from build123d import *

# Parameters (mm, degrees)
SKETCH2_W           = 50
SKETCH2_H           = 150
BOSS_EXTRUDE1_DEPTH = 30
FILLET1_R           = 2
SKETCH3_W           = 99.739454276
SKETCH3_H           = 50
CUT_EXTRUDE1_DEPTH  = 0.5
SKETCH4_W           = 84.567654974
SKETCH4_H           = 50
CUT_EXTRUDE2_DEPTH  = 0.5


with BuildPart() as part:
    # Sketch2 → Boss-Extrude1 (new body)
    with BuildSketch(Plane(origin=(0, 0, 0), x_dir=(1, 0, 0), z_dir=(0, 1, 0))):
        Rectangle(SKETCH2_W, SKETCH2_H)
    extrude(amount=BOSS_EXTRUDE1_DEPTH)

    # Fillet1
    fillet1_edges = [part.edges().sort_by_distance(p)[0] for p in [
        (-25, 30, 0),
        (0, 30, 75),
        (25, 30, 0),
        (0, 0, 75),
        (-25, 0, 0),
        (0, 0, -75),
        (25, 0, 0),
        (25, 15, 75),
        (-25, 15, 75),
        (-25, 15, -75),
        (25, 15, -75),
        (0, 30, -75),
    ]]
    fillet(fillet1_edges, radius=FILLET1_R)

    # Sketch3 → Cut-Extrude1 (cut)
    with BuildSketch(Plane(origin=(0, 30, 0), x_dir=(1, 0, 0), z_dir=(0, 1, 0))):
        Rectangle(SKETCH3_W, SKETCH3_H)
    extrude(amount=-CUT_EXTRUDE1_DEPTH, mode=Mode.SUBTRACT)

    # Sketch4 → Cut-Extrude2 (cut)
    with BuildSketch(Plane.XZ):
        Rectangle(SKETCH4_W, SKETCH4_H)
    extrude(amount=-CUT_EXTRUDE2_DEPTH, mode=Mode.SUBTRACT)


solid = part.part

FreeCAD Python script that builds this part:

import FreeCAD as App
import Part
import Sketcher

V = App.Vector
Q = App.Units.Quantity


def add_polygon(sketch, points):
    """Adds a closed chain of lines whose ends are joined by coincident constraints."""
    first, n = sketch.GeometryCount, len(points)
    for a, b in zip(points, points[1:] + points[:1]):
        sketch.addGeometry(Part.LineSegment(App.Vector(*a, 0), App.Vector(*b, 0)), False)
    for i in range(n):
        sketch.addConstraint(Sketcher.Constraint("Coincident", first + i, 2, first + (i + 1) % n, 1))

doc = App.newDocument("Part")
params = doc.addObject("Spreadsheet::Sheet", "Params")
for row, (alias, value) in enumerate([
    ("sketch1_width", "50 mm"),
    ("sketch1_height", "150 mm"),
    ("pad1_length", "30 mm"),
    ("fillet_radius", "2 mm"),
    ("sketch2_height", "50 mm"),
    ("pocket1_length", "0.5 mm"),
    ("sketch3_height", "50 mm"),
    ("pocket2_length", "0.5 mm"),
], start=1):
    params.set(f"A{row}", alias)
    params.set(f"B{row}", "=" + value)
    params.setAlias(f"B{row}", alias)

body = doc.addObject("PartDesign::Body", "Body")

# Sketch on XZ plane
sketch1 = body.newObject("Sketcher::SketchObject", "Sketch")
sketch1.AttachmentSupport = (doc.getObject("XZ_Plane"), [""])
sketch1.MapMode = "FlatFace"
add_polygon(sketch1, [(-25, -75), (-25, 75), (25, 75), (25, -75)])  # lines 0-3
sketch1.addConstraint(Sketcher.Constraint("Vertical", 0))
sketch1.addConstraint(Sketcher.Constraint("Horizontal", 1))
sketch1.addConstraint(Sketcher.Constraint("Vertical", 2))
sketch1.addConstraint(Sketcher.Constraint("Horizontal", 3))
sketch1.addConstraint(Sketcher.Constraint("Symmetric", 0, 2, 2, 2, -1, 1))
sketch1.addConstraint(Sketcher.Constraint("DistanceX", 1, 1, 1, 2, Q("50 mm")))
sketch1.addConstraint(Sketcher.Constraint("DistanceY", 0, 1, 0, 2, Q("150 mm")))
sketch1.setExpression("Constraints[9]", "Params.sketch1_width")
sketch1.setExpression("Constraints[10]", "Params.sketch1_height")
pad1 = body.newObject("PartDesign::Pad", "Pad")
pad1.Profile = sketch1
pad1.setExpression("Length", "Params.pad1_length")
pad1.Reversed = True
doc.recompute()

fillet = body.newObject("PartDesign::Fillet", "Fillet")
fillet.Base = (pad1, ["Edge1"])
fillet.UseAllEdges = True
fillet.setExpression("Radius", "Params.fillet_radius")

# Sketch on XZ plane
sketch2 = body.newObject("Sketcher::SketchObject", "Sketch001")
sketch2.AttachmentSupport = (doc.getObject("XZ_Plane"), [""])
sketch2.MapMode = "FlatFace"
sketch2.AttachmentOffset = App.Placement(V(0, 0, -30), App.Rotation())
add_polygon(sketch2, [(-50, -25), (-50, 25), (50, 25), (50, -25)])  # lines 0-3
sketch2.addConstraint(Sketcher.Constraint("Vertical", 0))
sketch2.addConstraint(Sketcher.Constraint("Horizontal", 1))
sketch2.addConstraint(Sketcher.Constraint("Vertical", 2))
sketch2.addConstraint(Sketcher.Constraint("Horizontal", 3))
sketch2.addConstraint(Sketcher.Constraint("Symmetric", 0, 2, 2, 2, -1, 1))
sketch2.addConstraint(Sketcher.Constraint("DistanceY", 0, 1, 0, 2, Q("50 mm")))
sketch2.addConstraint(Sketcher.Constraint("DistanceX", 1, 1, 1, 2, Q("99.739454 mm")))
sketch2.setExpression("Constraints[9]", "Params.sketch2_height")
pocket1 = body.newObject("PartDesign::Pocket", "Pocket")
pocket1.Profile = sketch2
pocket1.setExpression("Length", "Params.pocket1_length")
pocket1.Reversed = True

# Sketch on XZ plane
sketch3 = body.newObject("Sketcher::SketchObject", "Sketch002")
sketch3.AttachmentSupport = (doc.getObject("XZ_Plane"), [""])
sketch3.MapMode = "FlatFace"
add_polygon(sketch3, [(-42, 25), (-42, -25), (42, -25), (42, 25)])  # lines 0-3
sketch3.addConstraint(Sketcher.Constraint("Vertical", 0))
sketch3.addConstraint(Sketcher.Constraint("Horizontal", 1))
sketch3.addConstraint(Sketcher.Constraint("Vertical", 2))
sketch3.addConstraint(Sketcher.Constraint("Horizontal", 3))
sketch3.addConstraint(Sketcher.Constraint("Symmetric", 0, 2, 2, 2, -1, 1))
sketch3.addConstraint(Sketcher.Constraint("DistanceY", 0, 2, 0, 1, Q("50 mm")))
sketch3.addConstraint(Sketcher.Constraint("DistanceX", 1, 1, 1, 2, Q("84.567655 mm")))
sketch3.setExpression("Constraints[9]", "Params.sketch3_height")
pocket2 = body.newObject("PartDesign::Pocket", "Pocket001")
pocket2.Profile = sketch3
pocket2.setExpression("Length", "Params.pocket2_length")

doc.recompute()
